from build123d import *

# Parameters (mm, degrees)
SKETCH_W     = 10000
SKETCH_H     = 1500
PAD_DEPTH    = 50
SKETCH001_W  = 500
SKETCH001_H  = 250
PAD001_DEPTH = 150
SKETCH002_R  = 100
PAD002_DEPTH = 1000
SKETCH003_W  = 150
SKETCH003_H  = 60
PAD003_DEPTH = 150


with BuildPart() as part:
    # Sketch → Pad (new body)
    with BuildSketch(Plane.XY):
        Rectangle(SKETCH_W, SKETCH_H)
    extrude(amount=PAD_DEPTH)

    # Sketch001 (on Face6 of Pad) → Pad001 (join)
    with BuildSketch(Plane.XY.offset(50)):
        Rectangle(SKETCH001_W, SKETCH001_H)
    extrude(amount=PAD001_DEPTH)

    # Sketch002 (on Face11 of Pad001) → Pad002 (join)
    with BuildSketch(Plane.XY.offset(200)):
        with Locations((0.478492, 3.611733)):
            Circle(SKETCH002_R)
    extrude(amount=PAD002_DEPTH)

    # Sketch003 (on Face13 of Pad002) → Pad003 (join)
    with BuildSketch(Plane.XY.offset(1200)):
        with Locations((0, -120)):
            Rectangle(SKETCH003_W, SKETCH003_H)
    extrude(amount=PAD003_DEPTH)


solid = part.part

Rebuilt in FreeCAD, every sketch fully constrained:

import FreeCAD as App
import Part
import Sketcher

V = App.Vector

doc = App.newDocument("Part")
body = doc.addObject("PartDesign::Body", "Body")

# Sketch on XY plane
sketch1 = body.newObject("Sketcher::SketchObject", "Sketch")
sketch1.AttachmentSupport = (doc.getObject("XY_Plane"), [""])
sketch1.MapMode = "FlatFace"
sketch1.addGeometry([
    Part.LineSegment(V(-5000, 750, 0), V(-5000, -750, 0)),
    Part.LineSegment(V(-5000, -750, 0), V(5000, -750, 0)),
    Part.LineSegment(V(5000, -750, 0), V(5000, 750, 0)),
    Part.LineSegment(V(5000, 750, 0), V(-5000, 750, 0)),
], False)
sketch1.addConstraint([
    Sketcher.Constraint("Coincident", 0, 2, 1, 1),
    Sketcher.Constraint("Coincident", 1, 2, 2, 1),
    Sketcher.Constraint("Coincident", 2, 2, 3, 1),
    Sketcher.Constraint("Coincident", 3, 2, 0, 1),
    Sketcher.Constraint("Vertical", 0),
    Sketcher.Constraint("Horizontal", 1),
    Sketcher.Constraint("Vertical", 2),
    Sketcher.Constraint("Horizontal", 3),
    Sketcher.Constraint("Symmetric", 0, 2, 2, 2, -1, 1),
    Sketcher.Constraint("DistanceX", 1, 1, 1, 2, 10000.0),
    Sketcher.Constraint("DistanceY", 0, 2, 0, 1, 1500.0),
])
pad1 = body.newObject("PartDesign::Pad", "Pad")
pad1.Profile = sketch1
pad1.Length = 50

# Sketch on XY plane
sketch2 = body.newObject("Sketcher::SketchObject", "Sketch001")
sketch2.AttachmentSupport = (doc.getObject("XY_Plane"), [""])
sketch2.MapMode = "FlatFace"
sketch2.AttachmentOffset = App.Placement(V(0, 0, 50), App.Rotation())
sketch2.addGeometry([
    Part.LineSegment(V(-250, 125, 0), V(-250, -125, 0)),
    Part.LineSegment(V(-250, -125, 0), V(250, -125, 0)),
    Part.LineSegment(V(250, -125, 0), V(250, 125, 0)),
    Part.LineSegment(V(250, 125, 0), V(-250, 125, 0)),
], False)
sketch2.addConstraint([
    Sketcher.Constraint("Coincident", 0, 2, 1, 1),
    Sketcher.Constraint("Coincident", 1, 2, 2, 1),
    Sketcher.Constraint("Coincident", 2, 2, 3, 1),
    Sketcher.Constraint("Coincident", 3, 2, 0, 1),
    Sketcher.Constraint("Vertical", 0),
    Sketcher.Constraint("Horizontal", 1),
    Sketcher.Constraint("Vertical", 2),
    Sketcher.Constraint("Horizontal", 3),
    Sketcher.Constraint("Symmetric", 0, 2, 2, 2, -1, 1),
    Sketcher.Constraint("DistanceX", 1, 1, 1, 2, 500.0),
    Sketcher.Constraint("DistanceY", 0, 2, 0, 1, 250.0),
])
pad2 = body.newObject("PartDesign::Pad", "Pad001")
pad2.Profile = sketch2
pad2.Length = 150

# Sketch on XY plane
sketch3 = body.newObject("Sketcher::SketchObject", "Sketch002")
sketch3.AttachmentSupport = (doc.getObject("XY_Plane"), [""])
sketch3.MapMode = "FlatFace"
sketch3.AttachmentOffset = App.Placement(V(0, 0, 200), App.Rotation())
sketch3.addGeometry(Part.Circle(V(0.478492, 3.611733, 0), V(0, 0, 1), 100), False)
sketch3.addConstraint([
    Sketcher.Constraint("Diameter", 0, 200.0),
    Sketcher.Constraint("DistanceX", -1, 1, 0, 3, 0.478492),
    Sketcher.Constraint("DistanceY", -1, 1, 0, 3, 3.611733),
])
pad3 = body.newObject("PartDesign::Pad", "Pad002")
pad3.Profile = sketch3
pad3.Length = 1000

# Sketch on XY plane
sketch4 = body.newObject("Sketcher::SketchObject", "Sketch003")
sketch4.AttachmentSupport = (doc.getObject("XY_Plane"), [""])
sketch4.MapMode = "FlatFace"
sketch4.AttachmentOffset = App.Placement(V(0, 0, 1200), App.Rotation())
sketch4.addGeometry([
    Part.LineSegment(V(-75, -90, 0), V(-75, -150, 0)),
    Part.LineSegment(V(-75, -150, 0), V(75, -150, 0)),
    Part.LineSegment(V(75, -150, 0), V(75, -90, 0)),
    Part.LineSegment(V(75, -90, 0), V(-75, -90, 0)),
], False)
sketch4.addConstraint([
    Sketcher.Constraint("Coincident", 0, 2, 1, 1),
    Sketcher.Constraint("Coincident", 1, 2, 2, 1),
    Sketcher.Constraint("Coincident", 2, 2, 3, 1),
    Sketcher.Constraint("Coincident", 3, 2, 0, 1),
    Sketcher.Constraint("Vertical", 0),
    Sketcher.Constraint("Horizontal", 1),
    Sketcher.Constraint("Vertical", 2),
    Sketcher.Constraint("Horizontal", 3),
    Sketcher.Constraint("DistanceX", 1, 1, 1, 2, 150.0),
    Sketcher.Constraint("DistanceY", 0, 2, 0, 1, 60.0),
    Sketcher.Constraint("DistanceX", 0, 2, -1, 1, 75.0),
    Sketcher.Constraint("DistanceY", 0, 2, -1, 1, 150.0),
])
pad4 = body.newObject("PartDesign::Pad", "Pad003")
pad4.Profile = sketch4
pad4.Length = 150

doc.recompute()
